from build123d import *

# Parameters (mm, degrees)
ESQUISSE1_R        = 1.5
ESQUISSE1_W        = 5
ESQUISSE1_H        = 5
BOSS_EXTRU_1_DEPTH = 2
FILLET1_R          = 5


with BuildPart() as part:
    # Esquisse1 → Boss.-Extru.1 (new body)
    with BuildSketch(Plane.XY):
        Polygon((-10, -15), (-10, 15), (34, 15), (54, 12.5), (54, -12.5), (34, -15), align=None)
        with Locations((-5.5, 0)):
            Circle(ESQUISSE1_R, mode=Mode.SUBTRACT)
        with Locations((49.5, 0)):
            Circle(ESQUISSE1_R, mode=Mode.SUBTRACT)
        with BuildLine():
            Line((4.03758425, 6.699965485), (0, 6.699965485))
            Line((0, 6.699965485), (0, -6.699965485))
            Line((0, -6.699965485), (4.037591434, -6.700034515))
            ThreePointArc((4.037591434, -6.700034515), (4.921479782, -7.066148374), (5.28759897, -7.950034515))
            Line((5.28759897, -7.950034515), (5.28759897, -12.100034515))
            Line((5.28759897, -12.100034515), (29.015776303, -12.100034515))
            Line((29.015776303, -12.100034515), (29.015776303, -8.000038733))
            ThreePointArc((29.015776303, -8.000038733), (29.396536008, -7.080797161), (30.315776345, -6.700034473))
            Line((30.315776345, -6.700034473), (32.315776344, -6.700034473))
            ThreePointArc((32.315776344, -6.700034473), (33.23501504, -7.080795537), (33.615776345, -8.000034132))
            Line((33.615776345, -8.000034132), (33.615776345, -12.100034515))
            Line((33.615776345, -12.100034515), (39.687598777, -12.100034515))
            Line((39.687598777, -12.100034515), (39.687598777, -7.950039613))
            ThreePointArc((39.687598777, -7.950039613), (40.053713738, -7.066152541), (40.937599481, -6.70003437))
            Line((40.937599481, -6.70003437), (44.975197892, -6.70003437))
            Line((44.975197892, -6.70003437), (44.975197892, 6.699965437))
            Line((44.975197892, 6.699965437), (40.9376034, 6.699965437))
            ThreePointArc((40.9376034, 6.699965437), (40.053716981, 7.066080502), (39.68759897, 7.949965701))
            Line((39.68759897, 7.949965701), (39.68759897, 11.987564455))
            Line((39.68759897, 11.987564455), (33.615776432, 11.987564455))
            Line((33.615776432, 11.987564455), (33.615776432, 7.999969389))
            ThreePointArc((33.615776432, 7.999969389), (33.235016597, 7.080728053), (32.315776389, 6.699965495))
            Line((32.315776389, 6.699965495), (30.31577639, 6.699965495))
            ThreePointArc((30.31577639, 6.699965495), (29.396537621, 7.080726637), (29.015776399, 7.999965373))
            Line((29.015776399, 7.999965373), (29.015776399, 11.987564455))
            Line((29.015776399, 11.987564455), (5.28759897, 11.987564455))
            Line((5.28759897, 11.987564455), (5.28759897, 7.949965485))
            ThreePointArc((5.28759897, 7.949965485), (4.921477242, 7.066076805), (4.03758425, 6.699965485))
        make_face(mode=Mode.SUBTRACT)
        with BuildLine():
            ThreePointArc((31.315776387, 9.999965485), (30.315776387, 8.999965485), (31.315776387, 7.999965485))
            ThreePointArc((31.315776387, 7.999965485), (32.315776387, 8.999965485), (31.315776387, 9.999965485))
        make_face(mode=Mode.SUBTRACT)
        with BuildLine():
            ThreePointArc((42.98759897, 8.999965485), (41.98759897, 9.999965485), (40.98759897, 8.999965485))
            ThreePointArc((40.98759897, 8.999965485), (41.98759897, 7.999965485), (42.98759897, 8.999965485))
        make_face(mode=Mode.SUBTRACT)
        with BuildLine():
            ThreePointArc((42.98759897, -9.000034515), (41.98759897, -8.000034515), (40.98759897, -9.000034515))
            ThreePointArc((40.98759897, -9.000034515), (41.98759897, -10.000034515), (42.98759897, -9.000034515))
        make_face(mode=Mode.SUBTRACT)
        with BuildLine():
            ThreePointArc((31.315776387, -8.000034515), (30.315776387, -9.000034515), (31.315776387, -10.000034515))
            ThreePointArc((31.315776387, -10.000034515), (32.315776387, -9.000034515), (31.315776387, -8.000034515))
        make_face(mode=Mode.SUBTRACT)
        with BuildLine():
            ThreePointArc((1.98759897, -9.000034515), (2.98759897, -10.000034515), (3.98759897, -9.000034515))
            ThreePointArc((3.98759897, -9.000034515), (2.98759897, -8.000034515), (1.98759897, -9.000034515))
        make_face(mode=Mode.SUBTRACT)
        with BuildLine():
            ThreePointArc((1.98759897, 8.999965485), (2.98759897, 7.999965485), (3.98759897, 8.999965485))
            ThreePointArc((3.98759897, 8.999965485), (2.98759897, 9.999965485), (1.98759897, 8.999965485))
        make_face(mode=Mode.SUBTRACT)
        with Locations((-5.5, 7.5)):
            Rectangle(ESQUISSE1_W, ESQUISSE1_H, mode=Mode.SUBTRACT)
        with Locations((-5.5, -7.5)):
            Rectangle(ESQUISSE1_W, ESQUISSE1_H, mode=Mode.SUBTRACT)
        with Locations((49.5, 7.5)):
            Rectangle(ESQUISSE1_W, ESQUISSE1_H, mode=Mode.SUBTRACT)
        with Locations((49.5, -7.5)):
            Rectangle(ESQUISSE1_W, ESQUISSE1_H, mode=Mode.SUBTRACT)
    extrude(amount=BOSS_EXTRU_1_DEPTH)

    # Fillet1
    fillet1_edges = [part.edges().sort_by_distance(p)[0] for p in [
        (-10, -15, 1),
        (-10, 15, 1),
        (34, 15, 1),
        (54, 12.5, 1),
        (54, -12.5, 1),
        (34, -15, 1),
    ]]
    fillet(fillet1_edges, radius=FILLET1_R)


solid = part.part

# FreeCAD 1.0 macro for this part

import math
import FreeCAD as App
import Part
import Sketcher

V = App.Vector


def edges_at(feature, points):
    """Names of the edges that pass closest to the given points."""
    edges = feature.Shape.Edges
    near = lambda p: min(range(len(edges)), key=lambda i: edges[i].distToShape(Part.Vertex(*p))[0])
    return sorted({f"Edge{near(p) + 1}" for p in points})

doc = App.newDocument("Part")
params = doc.addObject("Spreadsheet::Sheet", "Params")
for row, (alias, value) in enumerate([
    ("sketch1_diameter", "2 mm"),
    ("sketch1_diameter2", "3 mm"),
    ("sketch1_radius", "1.3 mm"),
    ("sketch1_width", "44 mm"),
    ("sketch1_width2", "5 mm"),
    ("pad1_length", "2 mm"),
    ("fillet_radius", "5 mm"),
], start=1):
    params.set(f"A{row}", alias)
    params.set(f"B{row}", "=" + value)
    params.setAlias(f"B{row}", alias)

body = doc.addObject("PartDesign::Body", "Body")

# Sketch on XY plane
sketch1 = body.newObject("Sketcher::SketchObject", "Sketch")
sketch1.AttachmentSupport = (doc.getObject("XY_Plane"), [""])
sketch1.MapMode = "FlatFace"
sketch1.addGeometry(Part.LineSegment(V(-10, 15, 0), V(-10, -15, 0)), False)
sketch1.addGeometry(Part.LineSegment(V(-10, -15, 0), V(34, -15, 0)), False)
sketch1.addGeometry(Part.LineSegment(V(34, -15, 0), V(54, -12.5, 0)), False)
sketch1.addGeometry(Part.LineSegment(V(54, -12.5, 0), V(54, 12.5, 0)), False)
sketch1.addGeometry(Part.LineSegment(V(54, 12.5, 0), V(34, 15, 0)), False)
sketch1.addGeometry(Part.LineSegment(V(34, 15, 0), V(-10, 15, 0)), False)
sketch1.addGeometry(Part.LineSegment(V(47, -10, 0), V(47, -5, 0)), False)
sketch1.addGeometry(Part.LineSegment(V(47, -5, 0), V(52, -5, 0)), False)
sketch1.addGeometry(Part.LineSegment(V(52, -5, 0), V(52, -10, 0)), False)
sketch1.addGeometry(Part.LineSegment(V(52, -10, 0), V(47, -10, 0)), False)
sketch1.addGeometry(Part.Circle(V(42, -9, 0), V(0, 0, 1), 1), False)
sketch1.addGeometry(Part.Circle(V(31.3, -9, 0), V(0, 0, 1), 1), False)
sketch1.addGeometry(Part.Circle(V(3, -9, 0), V(0, 0, 1), 1), False)
sketch1.addGeometry(Part.LineSegment(V(-8, -10, 0), V(-8, -5, 0)), False)
sketch1.addGeometry(Part.LineSegment(V(-8, -5, 0), V(-3, -5, 0)), False)
sketch1.addGeometry(Part.LineSegment(V(-3, -5, 0), V(-3, -10, 0)), False)
sketch1.addGeometry(Part.LineSegment(V(-3, -10, 0), V(-8, -10, 0)), False)
sketch1.addGeometry(Part.Circle(V(49.5, 0, 0), V(0, 0, 1), 1.5), False)
sketch1.addGeometry(Part.ArcOfCircle(Part.Circle(V(4, 7.9, 0), V(0, 0, 1), 1.3), math.radians(-90), math.radians(0)), False)
sketch1.addGeometry(Part.LineSegment(V(5.3, 7.9, 0), V(5.3, 12, 0)), False)
sketch1.addGeometry(Part.LineSegment(V(5.3, 12, 0), V(29, 12, 0)), False)
sketch1.addGeometry(Part.LineSegment(V(29, 12, 0), V(29, 8, 0)), False)
sketch1.addGeometry(Part.ArcOfCircle(Part.Circle(V(30.3, 8, 0), V(0, 0, 1), 1.3), math.radians(-180), math.radians(-90)), False)
sketch1.addGeometry(Part.LineSegment(V(30.3, 6.7, 0), V(32.3, 6.7, 0)), False)
sketch1.addGeometry(Part.ArcOfCircle(Part.Circle(V(32.3, 8, 0), V(0, 0, 1), 1.3), math.radians(-90), math.radians(0)), False)
sketch1.addGeometry(Part.LineSegment(V(33.6, 8, 0), V(33.6, 12, 0)), False)
sketch1.addGeometry(Part.LineSegment(V(33.6, 12, 0), V(39.7, 12, 0)), False)
sketch1.addGeometry(Part.LineSegment(V(39.7, 12, 0), V(39.7, 7.9, 0)), False)
sketch1.addGeometry(Part.ArcOfCircle(Part.Circle(V(40.9, 7.9, 0), V(0, 0, 1), 1.3), math.radians(180), math.radians(270)), False)
sketch1.addGeometry(Part.LineSegment(V(40.9, 6.7, 0), V(45, 6.7, 0)), False)
sketch1.addGeometry(Part.LineSegment(V(45, 6.7, 0), V(45, -6.7, 0)), False)
sketch1.addGeometry(Part.LineSegment(V(45, -6.7, 0), V(40.9, -6.7, 0)), False)
sketch1.addGeometry(Part.ArcOfCircle(Part.Circle(V(40.9, -8, 0), V(0, 0, 1), 1.3), math.radians(90), math.radians(180)), False)
sketch1.addGeometry(Part.LineSegment(V(39.7, -8, 0), V(39.7, -12.1, 0)), False)
sketch1.addGeometry(Part.LineSegment(V(39.7, -12.1, 0), V(33.6, -12.1, 0)), False)
sketch1.addGeometry(Part.LineSegment(V(33.6, -12.1, 0), V(33.6, -8, 0)), False)
sketch1.addGeometry(Part.ArcOfCircle(Part.Circle(V(32.3, -8, 0), V(0, 0, 1), 1.3), math.radians(0), math.radians(90)), False)
sketch1.addGeometry(Part.LineSegment(V(32.3, -6.7, 0), V(30.3, -6.7, 0)), False)
sketch1.addGeometry(Part.ArcOfCircle(Part.Circle(V(30.3, -8, 0), V(0, 0, 1), 1.3), math.radians(90), math.radians(180)), False)
sketch1.addGeometry(Part.LineSegment(V(29, -8, 0), V(29, -12.1, 0)), False)
sketch1.addGeometry(Part.LineSegment(V(29, -12.1, 0), V(5.3, -12.1, 0)), False)
sketch1.addGeometry(Part.LineSegment(V(5.3, -12.1, 0), V(5.3, -8, 0)), False)
sketch1.addGeometry(Part.ArcOfCircle(Part.Circle(V(4, -8, 0), V(0, 0, 1), 1.2), math.radians(0), math.radians(90)), False)
sketch1.addGeometry(Part.LineSegment(V(4, -6.7, 0), V(0, -6.7, 0)), False)
sketch1.addGeometry(Part.LineSegment(V(0, -6.7, 0), V(0, 6.7, 0)), False)
sketch1.addGeometry(Part.LineSegment(V(0, 6.7, 0), V(4, 6.7, 0)), False)
sketch1.addGeometry(Part.LineSegment(V(47, 5, 0), V(47, 10, 0)), False)
sketch1.addGeometry(Part.LineSegment(V(47, 10, 0), V(52, 10, 0)), False)
sketch1.addGeometry(Part.LineSegment(V(52, 10, 0), V(52, 5, 0)), False)
sketch1.addGeometry(Part.LineSegment(V(52, 5, 0), V(47, 5, 0)), False)
sketch1.addGeometry(Part.Circle(V(42, 9, 0), V(0, 0, 1), 1), False)
sketch1.addGeometry(Part.Circle(V(31.3, 9, 0), V(0, 0, 1), 1), False)
sketch1.addGeometry(Part.Circle(V(-5.5, 0, 0), V(0, 0, 1), 1.5), False)
sketch1.addGeometry(Part.LineSegment(V(-8, 5, 0), V(-8, 10, 0)), False)
sketch1.addGeometry(Part.LineSegment(V(-8, 10, 0), V(-3, 10, 0)), False)
sketch1.addGeometry(Part.LineSegment(V(-3, 10, 0), V(-3, 5, 0)), False)
sketch1.addGeometry(Part.LineSegment(V(-3, 5, 0), V(-8, 5, 0)), False)
sketch1.addGeometry(Part.Circle(V(3, 9, 0), V(0, 0, 1), 1), False)
sketch1.addConstraint(Sketcher.Constraint("Coincident", 0, 2, 1, 1))
sketch1.addConstraint(Sketcher.Constraint("Coincident", 1, 2, 2, 1))
sketch1.addConstraint(Sketcher.Constraint("Coincident", 2, 2, 3, 1))
sketch1.addConstraint(Sketcher.Constraint("Coincident", 3, 2, 4, 1))
sketch1.addConstraint(Sketcher.Constraint("Coincident", 4, 2, 5, 1))
sketch1.addConstraint(Sketcher.Constraint("Coincident", 5, 2, 0, 1))
sketch1.addConstraint(Sketcher.Constraint("Coincident", 6, 2, 7, 1))
sketch1.addConstraint(Sketcher.Constraint("Coincident", 7, 2, 8, 1))
sketch1.addConstraint(Sketcher.Constraint("Coincident", 8, 2, 9, 1))
sketch1.addConstraint(Sketcher.Constraint("Coincident", 9, 2, 6, 1))
sketch1.addConstraint(Sketcher.Constraint("Coincident", 13, 2, 14, 1))
sketch1.addConstraint(Sketcher.Constraint("Coincident", 14, 2, 15, 1))
sketch1.addConstraint(Sketcher.Constraint("Coincident", 15, 2, 16, 1))
sketch1.addConstraint(Sketcher.Constraint("Coincident", 16, 2, 13, 1))
sketch1.addConstraint(Sketcher.Constraint("Tangent", 18, 2, 19, 1))
sketch1.addConstraint(Sketcher.Constraint("Coincident", 19, 2, 20, 1))
sketch1.addConstraint(Sketcher.Constraint("Coincident", 20, 2, 21, 1))
sketch1.addConstraint(Sketcher.Constraint("Tangent", 21, 2, 22, 1))
sketch1.addConstraint(Sketcher.Constraint("Tangent", 22, 2, 23, 1))
sketch1.addConstraint(Sketcher.Constraint("Tangent", 23, 2, 24, 1))
sketch1.addConstraint(Sketcher.Constraint("Coincident", 24, 2, 25, 1))
sketch1.addConstraint(Sketcher.Constraint("Coincident", 25, 2, 26, 1))
sketch1.addConstraint(Sketcher.Constraint("Coincident", 26, 2, 27, 1))
sketch1.addConstraint(Sketcher.Constraint("Tangent", 27, 2, 28, 1))
sketch1.addConstraint(Sketcher.Constraint("Coincident", 28, 2, 29, 1))
sketch1.addConstraint(Sketcher.Constraint("Coincident", 29, 2, 30, 1))
sketch1.addConstraint(Sketcher.Constraint("Coincident", 30, 2, 31, 1))
sketch1.addConstraint(Sketcher.Constraint("Tangent", 31, 2, 32, 1))
sketch1.addConstraint(Sketcher.Constraint("Coincident", 32, 2, 33, 1))
sketch1.addConstraint(Sketcher.Constraint("Coincident", 33, 2, 34, 1))
sketch1.addConstraint(Sketcher.Constraint("Coincident", 34, 2, 35, 1))
sketch1.addConstraint(Sketcher.Constraint("Tangent", 35, 2, 36, 1))
sketch1.addConstraint(Sketcher.Constraint("Tangent", 36, 2, 37, 1))
sketch1.addConstraint(Sketcher.Constraint("Tangent", 37, 2, 38, 1))
sketch1.addConstraint(Sketcher.Constraint("Coincident", 38, 2, 39, 1))
sketch1.addConstraint(Sketcher.Constraint("Coincident", 39, 2, 40, 1))
sketch1.addConstraint(Sketcher.Constraint("Coincident", 40, 2, 41, 1))
sketch1.addConstraint(Sketcher.Constraint("Tangent", 41, 2, 42, 1))
sketch1.addConstraint(Sketcher.Constraint("Coincident", 42, 2, 43, 1))
sketch1.addConstraint(Sketcher.Constraint("Coincident", 43, 2, 44, 1))
sketch1.addConstraint(Sketcher.Constraint("Coincident", 44, 2, 45, 1))
sketch1.addConstraint(Sketcher.Constraint("Coincident", 45, 2, 18, 1))
sketch1.addConstraint(Sketcher.Constraint("Coincident", 46, 2, 47, 1))
sketch1.addConstraint(Sketcher.Constraint("Coincident", 47, 2, 48, 1))
sketch1.addConstraint(Sketcher.Constraint("Coincident", 48, 2, 49, 1))
sketch1.addConstraint(Sketcher.Constraint("Coincident", 49, 2, 46, 1))
sketch1.addConstraint(Sketcher.Constraint("Coincident", 53, 2, 54, 1))
sketch1.addConstraint(Sketcher.Constraint("Coincident", 54, 2, 55, 1))
sketch1.addConstraint(Sketcher.Constraint("Coincident", 55, 2, 56, 1))
sketch1.addConstraint(Sketcher.Constraint("Coincident", 56, 2, 53, 1))
sketch1.addConstraint(Sketcher.Constraint("Vertical", 0))
sketch1.addConstraint(Sketcher.Constraint("Horizontal", 1))
sketch1.addConstraint(Sketcher.Constraint("Vertical", 3))
sketch1.addConstraint(Sketcher.Constraint("Horizontal", 5))
sketch1.addConstraint(Sketcher.Constraint("Vertical", 6))
sketch1.addConstraint(Sketcher.Constraint("Horizontal", 7))
sketch1.addConstraint(Sketcher.Constraint("Vertical", 8))
sketch1.addConstraint(Sketcher.Constraint("Horizontal", 9))
sketch1.addConstraint(Sketcher.Constraint("Vertical", 13))
sketch1.addConstraint(Sketcher.Constraint("Horizontal", 14))
sketch1.addConstraint(Sketcher.Constraint("Vertical", 15))
sketch1.addConstraint(Sketcher.Constraint("Horizontal", 16))
sketch1.addConstraint(Sketcher.Constraint("Vertical", 19))
sketch1.addConstraint(Sketcher.Constraint("Horizontal", 20))
sketch1.addConstraint(Sketcher.Constraint("Vertical", 21))
sketch1.addConstraint(Sketcher.Constraint("Horizontal", 23))
sketch1.addConstraint(Sketcher.Constraint("Vertical", 25))
sketch1.addConstraint(Sketcher.Constraint("Horizontal", 26))
sketch1.addConstraint(Sketcher.Constraint("Vertical", 27))
sketch1.addConstraint(Sketcher.Constraint("Horizontal", 29))
sketch1.addConstraint(Sketcher.Constraint("Vertical", 30))
sketch1.addConstraint(Sketcher.Constraint("Horizontal", 31))
sketch1.addConstraint(Sketcher.Constraint("Vertical", 33))
sketch1.addConstraint(Sketcher.Constraint("Horizontal", 34))
sketch1.addConstraint(Sketcher.Constraint("Vertical", 35))
sketch1.addConstraint(Sketcher.Constraint("Horizontal", 37))
sketch1.addConstraint(Sketcher.Constraint("Vertical", 39))
sketch1.addConstraint(Sketcher.Constraint("Horizontal", 40))
sketch1.addConstraint(Sketcher.Constraint("Vertical", 41))
sketch1.addConstraint(Sketcher.Constraint("Vertical", 44))
sketch1.addConstraint(Sketcher.Constraint("Horizontal", 45))
sketch1.addConstraint(Sketcher.Constraint("Vertical", 46))
sketch1.addConstraint(Sketcher.Constraint("Horizontal", 47))
sketch1.addConstraint(Sketcher.Constraint("Vertical", 48))
sketch1.addConstraint(Sketcher.Constraint("Horizontal", 49))
sketch1.addConstraint(Sketcher.Constraint("Vertical", 53))
sketch1.addConstraint(Sketcher.Constraint("Horizontal", 54))
sketch1.addConstraint(Sketcher.Constraint("Vertical", 55))
sketch1.addConstraint(Sketcher.Constraint("Horizontal", 56))
sketch1.addConstraint(Sketcher.Constraint("Equal", 10, 11))
sketch1.addConstraint(Sketcher.Constraint("Equal", 11, 12))
sketch1.addConstraint(Sketcher.Constraint("Equal", 22, 24))
sketch1.addConstraint(Sketcher.Constraint("Equal", 18, 28))
sketch1.addConstraint(Sketcher.Constraint("Equal", 28, 32))
sketch1.addConstraint(Sketcher.Constraint("Equal", 24, 36))
sketch1.addConstraint(Sketcher.Constraint("Equal", 36, 38))
sketch1.addConstraint(Sketcher.Constraint("Equal", 32, 42))
sketch1.addConstraint(Sketcher.Constraint("Equal", 12, 50))
sketch1.addConstraint(Sketcher.Constraint("Equal", 50, 51))
sketch1.addConstraint(Sketcher.Constraint("Equal", 17, 52))
sketch1.addConstraint(Sketcher.Constraint("Equal", 51, 57))
sketch1.addConstraint(Sketcher.Constraint("Symmetric", 43, 2, 44, 2, -1, 1))
sketch1.addConstraint(Sketcher.Constraint("Symmetric", 1, 2, 4, 2, -1))
sketch1.addConstraint(Sketcher.Constraint("Symmetric", 9, 2, 46, 2, -1))
sketch1.addConstraint(Sketcher.Constraint("Symmetric", 7, 2, 48, 2, -1))
sketch1.addConstraint(Sketcher.Constraint("Symmetric", 16, 2, 53, 2, -1))
sketch1.addConstraint(Sketcher.Constraint("Symmetric", 14, 2, 55, 2, -1))
sketch1.addConstraint(Sketcher.Constraint("PointOnObject", 17, 3, -1))
sketch1.addConstraint(Sketcher.Constraint("PointOnObject", 52, 3, -1))
sketch1.addConstraint(Sketcher.Constraint("Horizontal", 10, 3, 11, 3))
sketch1.addConstraint(Sketcher.Constraint("Horizontal", 11, 3, 12, 3))
sketch1.addConstraint(Sketcher.Constraint("Horizontal", 18, 3, 28, 3))
sketch1.addConstraint(Sketcher.Constraint("Horizontal", 32, 3, 42, 3))
sketch1.addConstraint(Sketcher.Constraint("Horizontal", 50, 3, 51, 3))
sketch1.addConstraint(Sketcher.Constraint("Horizontal", 51, 3, 57, 3))
sketch1.addConstraint(Sketcher.Constraint("Horizontal", 7, 2, 13, 2))
sketch1.addConstraint(Sketcher.Constraint("Horizontal", 9, 2, 15, 2))
sketch1.addConstraint(Sketcher.Constraint("Horizontal", 20, 2, 25, 2))
sketch1.addConstraint(Sketcher.Constraint("Horizontal", 23, 2, 28, 2))
sketch1.addConstraint(Sketcher.Constraint("Horizontal", 31, 2, 36, 2))
sketch1.addConstraint(Sketcher.Constraint("Horizontal", 34, 2, 39, 2))
sketch1.addConstraint(Sketcher.Constraint("Vertical", 28, 3, 32, 3))
sketch1.addConstraint(Sketcher.Constraint("Vertical", 24, 3, 36, 3))
sketch1.addConstraint(Sketcher.Constraint("Vertical", 22, 3, 38, 3))
sketch1.addConstraint(Sketcher.Constraint("Vertical", 18, 3, 42, 3))
sketch1.addConstraint(Sketcher.Constraint("Vertical", 10, 3, 50, 3))
sketch1.addConstraint(Sketcher.Constraint("Vertical", 11, 3, 51, 3))
sketch1.addConstraint(Sketcher.Constraint("Vertical", 12, 3, 57, 3))
sketch1.addConstraint(Sketcher.Constraint("Equal", 9, 14))
sketch1.addConstraint(Sketcher.Constraint("Equal", 56, 6))
sketch1.addConstraint(Sketcher.Constraint("Equal", 31, 19))
sketch1.addConstraint(Sketcher.Constraint("Equal", 2, 4))
sketch1.addConstraint(Sketcher.Constraint("Diameter", 10, 2.0))
sketch1.addConstraint(Sketcher.Constraint("Diameter", 17, 3.0))
sketch1.addConstraint(Sketcher.Constraint("Radius", 22, 1.3))
sketch1.addConstraint(Sketcher.Constraint("DistanceX", 1, 1, 1, 2, 44.0))
sketch1.addConstraint(Sketcher.Constraint("DistanceX", 7, 1, 7, 2, 5.0))
sketch1.addConstraint(Sketcher.Constraint("DistanceX", 23, 1, 23, 2, 2.0))
sketch1.addConstraint(Sketcher.Constraint("DistanceY", 0, 2, 0, 1, 30.0))
sketch1.addConstraint(Sketcher.Constraint("DistanceY", 3, 1, 3, 2, 25.0))
sketch1.addConstraint(Sketcher.Constraint("Radius", 18, 1.25))
sketch1.addConstraint(Sketcher.Constraint("DistanceY", 30, 2, 30, 1, 13.4))
sketch1.addConstraint(Sketcher.Constraint("DistanceY", 35, 1, 35, 2, 4.1))
sketch1.addConstraint(Sketcher.Constraint("DistanceX", 0, 2, -1, 1, 10.0))
sketch1.addConstraint(Sketcher.Constraint("DistanceX", -1, 1, 2, 2, 54.0))
sketch1.addConstraint(Sketcher.Constraint("DistanceX", -1, 1, 6, 2, 47.0))
sketch1.addConstraint(Sketcher.Constraint("DistanceY", 6, 2, -1, 1, 5.0))
sketch1.addConstraint(Sketcher.Constraint("DistanceX", 13, 2, -1, 1, 8.0))
sketch1.addConstraint(Sketcher.Constraint("DistanceX", -1, 1, 17, 3, 49.5))
sketch1.addConstraint(Sketcher.Constraint("DistanceX", 52, 3, -1, 1, 5.5))
sketch1.addConstraint(Sketcher.Constraint("DistanceX", 31, 2, 31, 1, 4.037598))
sketch1.addConstraint(Sketcher.Constraint("DistanceY", 44, 1, 44, 2, 13.399931))
sketch1.addConstraint(Sketcher.Constraint("DistanceX", -1, 1, 10, 3, 41.987599))
sketch1.addConstraint(Sketcher.Constraint("DistanceX", -1, 1, 12, 3, 2.987599))
sketch1.addConstraint(Sketcher.Constraint("DistanceX", -1, 1, 18, 3, 4.037599))
sketch1.addConstraint(Sketcher.Constraint("DistanceX", -1, 1, 28, 3, 40.937599))
sketch1.addConstraint(Sketcher.Constraint("Distance", 43, 4.037591))
sketch1.addConstraint(Sketcher.Constraint("DistanceX", 20, 1, 20, 2, 23.728177))
sketch1.addConstraint(Sketcher.Constraint("DistanceX", 29, 1, 29, 2, 4.037594))
sketch1.addConstraint(Sketcher.Constraint("DistanceX", 45, 1, 45, 2, 4.037584))
sketch1.addConstraint(Sketcher.Constraint("DistanceY", 25, 1, 25, 2, 3.987595))
sketch1.addConstraint(Sketcher.Constraint("DistanceY", 33, 2, 33, 1, 4.149995))
sketch1.addConstraint(Sketcher.Constraint("DistanceY", 39, 2, 39, 1, 4.099996))
sketch1.addConstraint(Sketcher.Constraint("DistanceY", 10, 3, -1, 1, 9.000035))
sketch1.addConstraint(Sketcher.Constraint("DistanceX", -1, 1, 11, 3, 31.315776))
sketch1.addConstraint(Sketcher.Constraint("DistanceY", -1, 1, 50, 3, 8.999965))
sketch1.setExpression("Constraints[132]", "Params.sketch1_diameter")
sketch1.setExpression("Constraints[133]", "Params.sketch1_diameter2")
sketch1.setExpression("Constraints[134]", "Params.sketch1_radius")
sketch1.setExpression("Constraints[135]", "Params.sketch1_width")
sketch1.setExpression("Constraints[136]", "Params.sketch1_width2")
pad1 = body.newObject("PartDesign::Pad", "Pad")
pad1.Profile = sketch1
pad1.setExpression("Length", "Params.pad1_length")
doc.recompute()

fillet = body.newObject("PartDesign::Fillet", "Fillet")
fillet.Base = (pad1, edges_at(pad1, [
    (-10, -15, 1),
    (-10, 15, 1),
    (34, 15, 1),
    (54, 12.5, 1),
    (54, -12.5, 1),
    (34, -15, 1),
]))
fillet.setExpression("Radius", "Params.fillet_radius")

doc.recompute()
